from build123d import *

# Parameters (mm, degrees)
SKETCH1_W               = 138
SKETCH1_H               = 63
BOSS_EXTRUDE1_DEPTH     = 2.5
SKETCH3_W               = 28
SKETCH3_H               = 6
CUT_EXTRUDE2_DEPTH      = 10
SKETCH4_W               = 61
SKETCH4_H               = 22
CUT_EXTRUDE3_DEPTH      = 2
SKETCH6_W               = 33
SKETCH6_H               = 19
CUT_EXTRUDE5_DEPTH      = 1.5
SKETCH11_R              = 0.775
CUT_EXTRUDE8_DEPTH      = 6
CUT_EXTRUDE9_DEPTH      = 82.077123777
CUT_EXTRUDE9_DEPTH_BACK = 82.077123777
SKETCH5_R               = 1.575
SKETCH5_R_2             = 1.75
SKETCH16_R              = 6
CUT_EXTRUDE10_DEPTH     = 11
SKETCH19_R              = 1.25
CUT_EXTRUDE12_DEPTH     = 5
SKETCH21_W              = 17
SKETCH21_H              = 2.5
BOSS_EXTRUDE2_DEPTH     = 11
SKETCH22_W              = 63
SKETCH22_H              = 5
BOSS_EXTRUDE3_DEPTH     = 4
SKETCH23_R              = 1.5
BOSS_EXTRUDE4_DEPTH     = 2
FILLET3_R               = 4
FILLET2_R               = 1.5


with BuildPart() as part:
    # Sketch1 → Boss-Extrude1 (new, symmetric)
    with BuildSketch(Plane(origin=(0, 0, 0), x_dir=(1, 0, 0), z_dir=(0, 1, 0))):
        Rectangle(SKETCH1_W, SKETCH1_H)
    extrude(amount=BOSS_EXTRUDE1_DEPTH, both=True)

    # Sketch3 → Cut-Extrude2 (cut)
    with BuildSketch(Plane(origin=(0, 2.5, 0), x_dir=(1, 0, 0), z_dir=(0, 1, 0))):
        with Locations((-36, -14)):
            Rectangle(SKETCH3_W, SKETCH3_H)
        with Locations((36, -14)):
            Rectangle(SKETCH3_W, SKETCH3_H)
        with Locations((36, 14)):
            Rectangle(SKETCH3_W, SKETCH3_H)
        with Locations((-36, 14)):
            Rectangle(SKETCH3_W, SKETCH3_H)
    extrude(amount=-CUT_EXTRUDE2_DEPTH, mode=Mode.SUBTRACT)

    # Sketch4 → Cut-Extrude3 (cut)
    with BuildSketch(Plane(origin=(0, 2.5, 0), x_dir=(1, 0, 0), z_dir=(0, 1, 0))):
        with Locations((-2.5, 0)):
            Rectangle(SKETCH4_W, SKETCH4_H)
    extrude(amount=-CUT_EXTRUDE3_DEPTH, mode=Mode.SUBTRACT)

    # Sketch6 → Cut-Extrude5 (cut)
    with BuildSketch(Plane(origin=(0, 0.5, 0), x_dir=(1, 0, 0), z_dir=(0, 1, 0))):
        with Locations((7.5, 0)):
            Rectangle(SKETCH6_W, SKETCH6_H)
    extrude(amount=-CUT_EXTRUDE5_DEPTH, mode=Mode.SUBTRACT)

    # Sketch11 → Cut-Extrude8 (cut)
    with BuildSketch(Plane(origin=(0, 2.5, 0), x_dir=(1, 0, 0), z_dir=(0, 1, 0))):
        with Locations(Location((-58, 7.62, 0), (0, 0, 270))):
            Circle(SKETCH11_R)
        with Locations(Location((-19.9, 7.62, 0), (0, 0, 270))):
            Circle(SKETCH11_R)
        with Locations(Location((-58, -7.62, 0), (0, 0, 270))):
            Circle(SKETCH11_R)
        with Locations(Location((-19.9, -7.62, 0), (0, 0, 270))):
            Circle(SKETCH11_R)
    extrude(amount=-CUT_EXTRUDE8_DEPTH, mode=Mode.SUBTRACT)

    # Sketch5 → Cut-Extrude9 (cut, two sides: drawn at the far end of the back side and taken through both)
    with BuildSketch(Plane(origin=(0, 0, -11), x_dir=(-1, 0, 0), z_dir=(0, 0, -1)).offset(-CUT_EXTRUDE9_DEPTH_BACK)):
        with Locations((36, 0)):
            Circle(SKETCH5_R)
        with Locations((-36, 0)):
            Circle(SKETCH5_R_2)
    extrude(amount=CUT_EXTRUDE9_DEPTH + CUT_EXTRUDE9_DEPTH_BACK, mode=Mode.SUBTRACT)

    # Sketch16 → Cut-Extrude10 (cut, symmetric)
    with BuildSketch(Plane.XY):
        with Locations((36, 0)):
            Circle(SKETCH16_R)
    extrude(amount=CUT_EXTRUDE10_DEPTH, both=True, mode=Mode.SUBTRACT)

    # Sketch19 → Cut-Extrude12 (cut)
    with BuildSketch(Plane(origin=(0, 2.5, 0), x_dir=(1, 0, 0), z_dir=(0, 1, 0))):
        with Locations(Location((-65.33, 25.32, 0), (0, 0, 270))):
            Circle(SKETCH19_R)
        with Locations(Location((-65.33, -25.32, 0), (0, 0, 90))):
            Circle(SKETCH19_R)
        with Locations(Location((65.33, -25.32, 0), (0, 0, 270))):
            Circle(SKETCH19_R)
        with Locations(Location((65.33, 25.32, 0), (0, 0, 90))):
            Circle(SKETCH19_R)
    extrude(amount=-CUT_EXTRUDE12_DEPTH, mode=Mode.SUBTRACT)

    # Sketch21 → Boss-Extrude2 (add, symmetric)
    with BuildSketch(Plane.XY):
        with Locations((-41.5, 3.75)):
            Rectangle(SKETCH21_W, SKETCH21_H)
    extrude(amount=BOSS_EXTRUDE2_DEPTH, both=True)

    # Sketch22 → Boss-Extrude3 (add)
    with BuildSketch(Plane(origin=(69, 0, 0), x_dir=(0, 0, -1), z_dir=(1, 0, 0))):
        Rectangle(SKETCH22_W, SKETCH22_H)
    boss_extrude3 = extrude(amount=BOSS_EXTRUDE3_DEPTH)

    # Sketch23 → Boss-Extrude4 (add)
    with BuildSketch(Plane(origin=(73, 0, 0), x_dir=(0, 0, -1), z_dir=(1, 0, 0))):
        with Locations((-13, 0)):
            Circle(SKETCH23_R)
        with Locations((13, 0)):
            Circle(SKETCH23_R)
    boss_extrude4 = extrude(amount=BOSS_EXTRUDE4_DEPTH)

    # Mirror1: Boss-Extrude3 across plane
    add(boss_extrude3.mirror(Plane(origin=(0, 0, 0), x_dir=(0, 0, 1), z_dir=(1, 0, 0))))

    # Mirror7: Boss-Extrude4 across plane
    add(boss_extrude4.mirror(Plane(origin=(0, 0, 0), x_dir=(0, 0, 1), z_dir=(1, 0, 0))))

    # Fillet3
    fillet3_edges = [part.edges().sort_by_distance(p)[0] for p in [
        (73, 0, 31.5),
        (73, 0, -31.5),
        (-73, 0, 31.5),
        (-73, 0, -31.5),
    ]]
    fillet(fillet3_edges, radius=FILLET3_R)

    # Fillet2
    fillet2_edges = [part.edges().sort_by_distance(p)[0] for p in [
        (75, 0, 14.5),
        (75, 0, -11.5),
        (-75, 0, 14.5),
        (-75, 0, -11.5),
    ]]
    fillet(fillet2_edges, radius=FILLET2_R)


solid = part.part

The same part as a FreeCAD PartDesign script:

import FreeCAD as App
import Part
import Sketcher
from FreeCAD import Vector


def edges_at(feature, points):
    """Names of the edges that pass closest to the given points."""
    edges = feature.Shape.Edges
    near = lambda p: min(range(len(edges)), key=lambda i: edges[i].distToShape(Part.Vertex(*p))[0])
    return sorted({f"Edge{near(p) + 1}" for p in points})

doc = App.newDocument("Part")
body = doc.addObject("PartDesign::Body", "Body")

# Sketch on XZ plane
sketch1 = body.newObject("Sketcher::SketchObject", "Sketch")
sketch1.AttachmentSupport = (doc.getObject("XZ_Plane"), [""])
sketch1.MapMode = "FlatFace"
sketch1.addGeometry([
    Part.LineSegment(Vector(-69, -32, 0), Vector(-69, 32, 0)),
    Part.LineSegment(Vector(-69, 32, 0), Vector(69, 32, 0)),
    Part.LineSegment(Vector(69, 32, 0), Vector(69, -32, 0)),
    Part.LineSegment(Vector(69, -32, 0), Vector(-69, -32, 0)),
], False)
sketch1.addConstraint([
    Sketcher.Constraint("Coincident", 0, 2, 1, 1),
    Sketcher.Constraint("Coincident", 1, 2, 2, 1),
    Sketcher.Constraint("Coincident", 2, 2, 3, 1),
    Sketcher.Constraint("Coincident", 3, 2, 0, 1),
    Sketcher.Constraint("Vertical", 0),
    Sketcher.Constraint("Horizontal", 1),
    Sketcher.Constraint("Vertical", 2),
    Sketcher.Constraint("Horizontal", 3),
    Sketcher.Constraint("Symmetric", 0, 2, 2, 2, -1, 1),
    Sketcher.Constraint("DistanceX", 1, 1, 1, 2, 138.0),
    Sketcher.Constraint("DistanceY", 0, 1, 0, 2, 63.0),
])
pad1 = body.newObject("PartDesign::Pad", "Pad")
pad1.Profile = sketch1
pad1.Length = 5
pad1.Midplane = True

# Sketch on XZ plane
sketch2 = body.newObject("Sketcher::SketchObject", "Sketch001")
sketch2.AttachmentSupport = (doc.getObject("XZ_Plane"), [""])
sketch2.MapMode = "FlatFace"
sketch2.AttachmentOffset = App.Placement(Vector(0, 0, -2.5), App.Rotation())
sketch2.addGeometry([
    Part.LineSegment(Vector(-50, 11, 0), Vector(-50, 17, 0)),  # 0
    Part.LineSegment(Vector(-50, 17, 0), Vector(-22, 17, 0)),  # 1
    Part.LineSegment(Vector(-22, 17, 0), Vector(-22, 11, 0)),  # 2
    Part.LineSegment(Vector(-22, 11, 0), Vector(-50, 11, 0)),  # 3
    Part.LineSegment(Vector(22, 11, 0), Vector(22, 17, 0)),  # 4
    Part.LineSegment(Vector(22, 17, 0), Vector(50, 17, 0)),  # 5
    Part.LineSegment(Vector(50, 17, 0), Vector(50, 11, 0)),  # 6
    Part.LineSegment(Vector(50, 11, 0), Vector(22, 11, 0)),  # 7
    Part.LineSegment(Vector(22, -17, 0), Vector(22, -11, 0)),  # 8
    Part.LineSegment(Vector(22, -11, 0), Vector(50, -11, 0)),  # 9
    Part.LineSegment(Vector(50, -11, 0), Vector(50, -17, 0)),  # 10
    Part.LineSegment(Vector(50, -17, 0), Vector(22, -17, 0)),  # 11
    Part.LineSegment(Vector(-50, -17, 0), Vector(-50, -11, 0)),  # 12
    Part.LineSegment(Vector(-50, -11, 0), Vector(-22, -11, 0)),  # 13
    Part.LineSegment(Vector(-22, -11, 0), Vector(-22, -17, 0)),  # 14
    Part.LineSegment(Vector(-22, -17, 0), Vector(-50, -17, 0)),  # 15
], False)
sketch2.addConstraint([
    Sketcher.Constraint("Coincident", 0, 2, 1, 1),
    Sketcher.Constraint("Coincident", 1, 2, 2, 1),
    Sketcher.Constraint("Coincident", 2, 2, 3, 1),
    Sketcher.Constraint("Coincident", 3, 2, 0, 1),
    Sketcher.Constraint("Coincident", 4, 2, 5, 1),
    Sketcher.Constraint("Coincident", 5, 2, 6, 1),
    Sketcher.Constraint("Coincident", 6, 2, 7, 1),
    Sketcher.Constraint("Coincident", 7, 2, 4, 1),
    Sketcher.Constraint("Coincident", 8, 2, 9, 1),
    Sketcher.Constraint("Coincident", 9, 2, 10, 1),
    Sketcher.Constraint("Coincident", 10, 2, 11, 1),
    Sketcher.Constraint("Coincident", 11, 2, 8, 1),
    Sketcher.Constraint("Coincident", 12, 2, 13, 1),
    Sketcher.Constraint("Coincident", 13, 2, 14, 1),
    Sketcher.Constraint("Coincident", 14, 2, 15, 1),
    Sketcher.Constraint("Coincident", 15, 2, 12, 1),
    Sketcher.Constraint("Vertical", 0),
    Sketcher.Constraint("Horizontal", 1),
    Sketcher.Constraint("Vertical", 2),
    Sketcher.Constraint("Horizontal", 3),
    Sketcher.Constraint("Vertical", 4),
    Sketcher.Constraint("Horizontal", 5),
    Sketcher.Constraint("Vertical", 6),
    Sketcher.Constraint("Horizontal", 7),
    Sketcher.Constraint("Vertical", 8),
    Sketcher.Constraint("Horizontal", 9),
    Sketcher.Constraint("Vertical", 10),
    Sketcher.Constraint("Horizontal", 11),
    Sketcher.Constraint("Vertical", 12),
    Sketcher.Constraint("Horizontal", 13),
    Sketcher.Constraint("Vertical", 14),
    Sketcher.Constraint("Horizontal", 15),
    Sketcher.Constraint("Symmetric", 2, 2, 8, 2, -1, 1),
    Sketcher.Constraint("Symmetric", 0, 2, 10, 2, -1, 1),
    Sketcher.Constraint("Symmetric", 6, 2, 12, 2, -1, 1),
    Sketcher.Constraint("Symmetric", 4, 2, 14, 2, -1, 1),
    Sketcher.Constraint("Symmetric", 1, 2, 4, 2, -2),
    Sketcher.Constraint("Symmetric", 3, 2, 6, 2, -2),
    Sketcher.Constraint("DistanceX", 1, 1, 1, 2, 28.0),
    Sketcher.Constraint("DistanceY", 0, 1, 0, 2, 6.0),
    Sketcher.Constraint("DistanceX", 0, 2, -1, 1, 50.0),
    Sketcher.Constraint("DistanceY", -1, 1, 0, 2, 17.0),
])
pocket1 = body.newObject("PartDesign::Pocket", "Pocket")
pocket1.Profile = sketch2
pocket1.Length = 10
pocket1.Reversed = True

# Sketch on XZ plane
sketch3 = body.newObject("Sketcher::SketchObject", "Sketch002")
sketch3.AttachmentSupport = (doc.getObject("XZ_Plane"), [""])
sketch3.MapMode = "FlatFace"
sketch3.AttachmentOffset = App.Placement(Vector(0, 0, -2.5), App.Rotation())
sketch3.addGeometry([
    Part.LineSegment(Vector(-33, -11, 0), Vector(-33, 11, 0)),
    Part.LineSegment(Vector(-33, 11, 0), Vector(28, 11, 0)),
    Part.LineSegment(Vector(28, 11, 0), Vector(28, -11, 0)),
    Part.LineSegment(Vector(28, -11, 0), Vector(-33, -11, 0)),
], False)
sketch3.addConstraint([
    Sketcher.Constraint("Coincident", 0, 2, 1, 1),
    Sketcher.Constraint("Coincident", 1, 2, 2, 1),
    Sketcher.Constraint("Coincident", 2, 2, 3, 1),
    Sketcher.Constraint("Coincident", 3, 2, 0, 1),
    Sketcher.Constraint("Vertical", 0),
    Sketcher.Constraint("Horizontal", 1),
    Sketcher.Constraint("Vertical", 2),
    Sketcher.Constraint("Horizontal", 3),
    Sketcher.Constraint("DistanceX", 1, 1, 1, 2, 61.0),
    Sketcher.Constraint("DistanceY", 0, 1, 0, 2, 22.0),
    Sketcher.Constraint("DistanceX", 0, 2, -1, 1, 33.0),
    Sketcher.Constraint("DistanceY", -1, 1, 0, 2, 11.0),
])
pocket2 = body.newObject("PartDesign::Pocket", "Pocket001")
pocket2.Profile = sketch3
pocket2.Length = 2
pocket2.Reversed = True

# Sketch on XZ plane
sketch4 = body.newObject("Sketcher::SketchObject", "Sketch003")
sketch4.AttachmentSupport = (doc.getObject("XZ_Plane"), [""])
sketch4.MapMode = "FlatFace"
sketch4.AttachmentOffset = App.Placement(Vector(0, 0, -0.5), App.Rotation())
sketch4.addGeometry([
    Part.LineSegment(Vector(-9, -10, 0), Vector(-9, 10, 0)),
    Part.LineSegment(Vector(-9, 10, 0), Vector(24, 10, 0)),
    Part.LineSegment(Vector(24, 10, 0), Vector(24, -10, 0)),
    Part.LineSegment(Vector(24, -10, 0), Vector(-9, -10, 0)),
], False)
sketch4.addConstraint([
    Sketcher.Constraint("Coincident", 0, 2, 1, 1),
    Sketcher.Constraint("Coincident", 1, 2, 2, 1),
    Sketcher.Constraint("Coincident", 2, 2, 3, 1),
    Sketcher.Constraint("Coincident", 3, 2, 0, 1),
    Sketcher.Constraint("Vertical", 0),
    Sketcher.Constraint("Horizontal", 1),
    Sketcher.Constraint("Vertical", 2),
    Sketcher.Constraint("Horizontal", 3),
    Sketcher.Constraint("DistanceX", 1, 1, 1, 2, 33.0),
    Sketcher.Constraint("DistanceY", 0, 1, 0, 2, 19.0),
    Sketcher.Constraint("DistanceX", 0, 2, -1, 1, 9.0),
    Sketcher.Constraint("DistanceY", -1, 1, 0, 2, 9.5),
])
pocket3 = body.newObject("PartDesign::Pocket", "Pocket002")
pocket3.Profile = sketch4
pocket3.Length = 1.5
pocket3.Reversed = True

# Sketch on XZ plane
sketch5 = body.newObject("Sketcher::SketchObject", "Sketch004")
sketch5.AttachmentSupport = (doc.getObject("XZ_Plane"), [""])
sketch5.MapMode = "FlatFace"
sketch5.AttachmentOffset = App.Placement(Vector(0, 0, -2.5), App.Rotation())
sketch5.addGeometry([
    Part.Circle(Vector(-58, -7.6, 0), Vector(0, 0, 1), 0.8),
    Part.Circle(Vector(-19.9, -7.6, 0), Vector(0, 0, 1), 0.8),
    Part.Circle(Vector(-58, 7.6, 0), Vector(0, 0, 1), 0.8),
    Part.Circle(Vector(-19.9, 7.6, 0), Vector(0, 0, 1), 0.8),
], False)
sketch5.addConstraint([
    Sketcher.Constraint("Equal", 0, 1),
    Sketcher.Constraint("Equal", 1, 2),
    Sketcher.Constraint("Equal", 2, 3),
    Sketcher.Constraint("Symmetric", 0, 3, 2, 3, -1),
    Sketcher.Constraint("Symmetric", 1, 3, 3, 3, -1),
    Sketcher.Constraint("Horizontal", 0, 3, 1, 3),
    Sketcher.Constraint("Diameter", 0, 1.55),
    Sketcher.Constraint("DistanceX", 0, 3, -1, 1, 58.0),
    Sketcher.Constraint("DistanceX", 1, 3, -1, 1, 19.9),
    Sketcher.Constraint("DistanceY", 0, 3, -1, 1, 7.62),
])
pocket4 = body.newObject("PartDesign::Pocket", "Pocket003")
pocket4.Profile = sketch5
pocket4.Length = 6
pocket4.Reversed = True

# Sketch on XY plane
sketch6 = body.newObject("Sketcher::SketchObject", "Sketch005")
sketch6.AttachmentSupport = (doc.getObject("XY_Plane"), [""])
sketch6.MapMode = "FlatFace"
sketch6.AttachmentOffset = App.Placement(Vector(0, 0, -11), App.Rotation())
sketch6.addGeometry([
    Part.Circle(Vector(-36, 0, 0), Vector(0, 0, 1), 1.6),
    Part.Circle(Vector(36, 0, 0), Vector(0, 0, 1), 1.8),
], False)
sketch6.addConstraint([
    Sketcher.Constraint("Symmetric", 0, 3, 1, 3, -1, 1),
    Sketcher.Constraint("PointOnObject", 0, 3, -1),
    Sketcher.Constraint("Diameter", 1, 3.5),
    Sketcher.Constraint("Diameter", 0, 3.15),
    Sketcher.Constraint("DistanceX", 0, 3, -1, 1, 36.0),
])
pocket5 = body.newObject("PartDesign::Pocket", "Pocket004")
pocket5.Profile = sketch6
pocket5.Type = "ThroughAll"
pocket5.Midplane = True

# Sketch on XY plane
sketch7 = body.newObject("Sketcher::SketchObject", "Sketch006")
sketch7.AttachmentSupport = (doc.getObject("XY_Plane"), [""])
sketch7.MapMode = "FlatFace"
sketch7.addGeometry(Part.Circle(Vector(36, 0, 0), Vector(0, 0, 1), 6), False)
sketch7.addConstraint([
    Sketcher.Constraint("PointOnObject", 0, 3, -1),
    Sketcher.Constraint("Diameter", 0, 12.0),
    Sketcher.Constraint("DistanceX", -1, 1, 0, 3, 36.0),
])
pocket6 = body.newObject("PartDesign::Pocket", "Pocket005")
pocket6.Profile = sketch7
pocket6.Length = 22
pocket6.Midplane = True

# Sketch on XZ plane
sketch8 = body.newObject("Sketcher::SketchObject", "Sketch007")
sketch8.AttachmentSupport = (doc.getObject("XZ_Plane"), [""])
sketch8.MapMode = "FlatFace"
sketch8.AttachmentOffset = App.Placement(Vector(0, 0, -2.5), App.Rotation())
sketch8.addGeometry([
    Part.Circle(Vector(-65.3, -25.3, 0), Vector(0, 0, 1), 1.2),
    Part.Circle(Vector(-65.3, 25.3, 0), Vector(0, 0, 1), 1.2),
    Part.Circle(Vector(65.3, 25.3, 0), Vector(0, 0, 1), 1.2),
    Part.Circle(Vector(65.3, -25.3, 0), Vector(0, 0, 1), 1.2),
], False)
sketch8.addConstraint([
    Sketcher.Constraint("Equal", 0, 1),
    Sketcher.Constraint("Equal", 1, 2),
    Sketcher.Constraint("Equal", 2, 3),
    Sketcher.Constraint("Symmetric", 0, 3, 2, 3, -1, 1),
    Sketcher.Constraint("Symmetric", 1, 3, 3, 3, -1, 1),
    Sketcher.Constraint("Symmetric", 1, 3, 2, 3, -2),
    Sketcher.Constraint("Diameter", 0, 2.5),
    Sketcher.Constraint("DistanceX", 0, 3, -1, 1, 65.33),
    Sketcher.Constraint("DistanceY", 0, 3, -1, 1, 25.32),
])
pocket7 = body.newObject("PartDesign::Pocket", "Pocket006")
pocket7.Profile = sketch8
pocket7.Length = 5
pocket7.Reversed = True

# Sketch on XY plane
sketch9 = body.newObject("Sketcher::SketchObject", "Sketch008")
sketch9.AttachmentSupport = (doc.getObject("XY_Plane"), [""])
sketch9.MapMode = "FlatFace"
sketch9.addGeometry([
    Part.LineSegment(Vector(-50, 5, 0), Vector(-50, 2.5, 0)),
    Part.LineSegment(Vector(-50, 2.5, 0), Vector(-33, 2.5, 0)),
    Part.LineSegment(Vector(-33, 2.5, 0), Vector(-33, 5, 0)),
    Part.LineSegment(Vector(-33, 5, 0), Vector(-50, 5, 0)),
], False)
sketch9.addConstraint([
    Sketcher.Constraint("Coincident", 0, 2, 1, 1),
    Sketcher.Constraint("Coincident", 1, 2, 2, 1),
    Sketcher.Constraint("Coincident", 2, 2, 3, 1),
    Sketcher.Constraint("Coincident", 3, 2, 0, 1),
    Sketcher.Constraint("Vertical", 0),
    Sketcher.Constraint("Horizontal", 1),
    Sketcher.Constraint("Vertical", 2),
    Sketcher.Constraint("Horizontal", 3),
    Sketcher.Constraint("DistanceX", 1, 1, 1, 2, 17.0),
    Sketcher.Constraint("DistanceY", 0, 2, 0, 1, 2.5),
    Sketcher.Constraint("DistanceX", 0, 2, -1, 1, 50.0),
    Sketcher.Constraint("DistanceY", -1, 1, 2, 2, 5.0),
])
pad2 = body.newObject("PartDesign::Pad", "Pad001")
pad2.Profile = sketch9
pad2.Length = 22
pad2.Midplane = True

# Sketch on YZ plane
sketch10 = body.newObject("Sketcher::SketchObject", "Sketch009")
sketch10.AttachmentSupport = (doc.getObject("YZ_Plane"), [""])
sketch10.MapMode = "FlatFace"
sketch10.AttachmentOffset = App.Placement(Vector(0, 0, 69), App.Rotation())
sketch10.addGeometry([
    Part.LineSegment(Vector(2, 32, 0), Vector(-2, 32, 0)),
    Part.LineSegment(Vector(-2, 32, 0), Vector(-2, -32, 0)),
    Part.LineSegment(Vector(-2, -32, 0), Vector(2, -32, 0)),
    Part.LineSegment(Vector(2, -32, 0), Vector(2, 32, 0)),
], False)
sketch10.addConstraint([
    Sketcher.Constraint("Coincident", 0, 2, 1, 1),
    Sketcher.Constraint("Coincident", 1, 2, 2, 1),
    Sketcher.Constraint("Coincident", 2, 2, 3, 1),
    Sketcher.Constraint("Coincident", 3, 2, 0, 1),
    Sketcher.Constraint("Horizontal", 0),
    Sketcher.Constraint("Vertical", 1),
    Sketcher.Constraint("Horizontal", 2),
    Sketcher.Constraint("Vertical", 3),
    Sketcher.Constraint("Symmetric", 0, 2, 2, 2, -1, 1),
    Sketcher.Constraint("DistanceX", 0, 2, 0, 1, 5.0),
    Sketcher.Constraint("DistanceY", 1, 2, 1, 1, 63.0),
])
pad3 = body.newObject("PartDesign::Pad", "Pad002")
pad3.Profile = sketch10
pad3.Length = 4

# Sketch on YZ plane
sketch11 = body.newObject("Sketcher::SketchObject", "Sketch010")
sketch11.AttachmentSupport = (doc.getObject("YZ_Plane"), [""])
sketch11.MapMode = "FlatFace"
sketch11.AttachmentOffset = App.Placement(Vector(0, 0, 73), App.Rotation())
sketch11.addGeometry([
    Part.Circle(Vector(0, 13, 0), Vector(0, 0, 1), 1.5),
    Part.Circle(Vector(0, -13, 0), Vector(0, 0, 1), 1.5),
], False)
sketch11.addConstraint([
    Sketcher.Constraint("Equal", 0, 1),
    Sketcher.Constraint("Symmetric", 0, 3, 1, 3, -1, 1),
    Sketcher.Constraint("PointOnObject", 0, 3, -2),
    Sketcher.Constraint("Diameter", 0, 3.0),
    Sketcher.Constraint("DistanceY", -1, 1, 0, 3, 13.0),
])
pad4 = body.newObject("PartDesign::Pad", "Pad003")
pad4.Profile = sketch11
pad4.Length = 2
doc.recompute()

mirrored = body.newObject("PartDesign::Mirrored", "Mirrored")
mirrored.Originals = [pad3]
mirrored.MirrorPlane = (doc.getObject("YZ_Plane"), [""])
body.Tip = mirrored
doc.recompute()

mirrored2 = body.newObject("PartDesign::Mirrored", "Mirrored001")
mirrored2.Originals = [pad4]
mirrored2.MirrorPlane = (doc.getObject("YZ_Plane"), [""])
body.Tip = mirrored2
doc.recompute()

fillet = body.newObject("PartDesign::Fillet", "Fillet")
fillet.Base = (mirrored2, edges_at(mirrored2, [
    (73, 0, 31.5),
    (73, 0, -31.5),
    (-73, 0, 31.5),
    (-73, 0, -31.5),
]))
fillet.Radius = 4
doc.recompute()

fillet2 = body.newObject("PartDesign::Fillet", "Fillet001")
fillet2.Base = (fillet, edges_at(fillet, [
    (75, 0, 14.5),
    (75, 0, -11.5),
    (-75, 0, 14.5),
    (-75, 0, -11.5),
]))
fillet2.Radius = 1.5

doc.recompute()
